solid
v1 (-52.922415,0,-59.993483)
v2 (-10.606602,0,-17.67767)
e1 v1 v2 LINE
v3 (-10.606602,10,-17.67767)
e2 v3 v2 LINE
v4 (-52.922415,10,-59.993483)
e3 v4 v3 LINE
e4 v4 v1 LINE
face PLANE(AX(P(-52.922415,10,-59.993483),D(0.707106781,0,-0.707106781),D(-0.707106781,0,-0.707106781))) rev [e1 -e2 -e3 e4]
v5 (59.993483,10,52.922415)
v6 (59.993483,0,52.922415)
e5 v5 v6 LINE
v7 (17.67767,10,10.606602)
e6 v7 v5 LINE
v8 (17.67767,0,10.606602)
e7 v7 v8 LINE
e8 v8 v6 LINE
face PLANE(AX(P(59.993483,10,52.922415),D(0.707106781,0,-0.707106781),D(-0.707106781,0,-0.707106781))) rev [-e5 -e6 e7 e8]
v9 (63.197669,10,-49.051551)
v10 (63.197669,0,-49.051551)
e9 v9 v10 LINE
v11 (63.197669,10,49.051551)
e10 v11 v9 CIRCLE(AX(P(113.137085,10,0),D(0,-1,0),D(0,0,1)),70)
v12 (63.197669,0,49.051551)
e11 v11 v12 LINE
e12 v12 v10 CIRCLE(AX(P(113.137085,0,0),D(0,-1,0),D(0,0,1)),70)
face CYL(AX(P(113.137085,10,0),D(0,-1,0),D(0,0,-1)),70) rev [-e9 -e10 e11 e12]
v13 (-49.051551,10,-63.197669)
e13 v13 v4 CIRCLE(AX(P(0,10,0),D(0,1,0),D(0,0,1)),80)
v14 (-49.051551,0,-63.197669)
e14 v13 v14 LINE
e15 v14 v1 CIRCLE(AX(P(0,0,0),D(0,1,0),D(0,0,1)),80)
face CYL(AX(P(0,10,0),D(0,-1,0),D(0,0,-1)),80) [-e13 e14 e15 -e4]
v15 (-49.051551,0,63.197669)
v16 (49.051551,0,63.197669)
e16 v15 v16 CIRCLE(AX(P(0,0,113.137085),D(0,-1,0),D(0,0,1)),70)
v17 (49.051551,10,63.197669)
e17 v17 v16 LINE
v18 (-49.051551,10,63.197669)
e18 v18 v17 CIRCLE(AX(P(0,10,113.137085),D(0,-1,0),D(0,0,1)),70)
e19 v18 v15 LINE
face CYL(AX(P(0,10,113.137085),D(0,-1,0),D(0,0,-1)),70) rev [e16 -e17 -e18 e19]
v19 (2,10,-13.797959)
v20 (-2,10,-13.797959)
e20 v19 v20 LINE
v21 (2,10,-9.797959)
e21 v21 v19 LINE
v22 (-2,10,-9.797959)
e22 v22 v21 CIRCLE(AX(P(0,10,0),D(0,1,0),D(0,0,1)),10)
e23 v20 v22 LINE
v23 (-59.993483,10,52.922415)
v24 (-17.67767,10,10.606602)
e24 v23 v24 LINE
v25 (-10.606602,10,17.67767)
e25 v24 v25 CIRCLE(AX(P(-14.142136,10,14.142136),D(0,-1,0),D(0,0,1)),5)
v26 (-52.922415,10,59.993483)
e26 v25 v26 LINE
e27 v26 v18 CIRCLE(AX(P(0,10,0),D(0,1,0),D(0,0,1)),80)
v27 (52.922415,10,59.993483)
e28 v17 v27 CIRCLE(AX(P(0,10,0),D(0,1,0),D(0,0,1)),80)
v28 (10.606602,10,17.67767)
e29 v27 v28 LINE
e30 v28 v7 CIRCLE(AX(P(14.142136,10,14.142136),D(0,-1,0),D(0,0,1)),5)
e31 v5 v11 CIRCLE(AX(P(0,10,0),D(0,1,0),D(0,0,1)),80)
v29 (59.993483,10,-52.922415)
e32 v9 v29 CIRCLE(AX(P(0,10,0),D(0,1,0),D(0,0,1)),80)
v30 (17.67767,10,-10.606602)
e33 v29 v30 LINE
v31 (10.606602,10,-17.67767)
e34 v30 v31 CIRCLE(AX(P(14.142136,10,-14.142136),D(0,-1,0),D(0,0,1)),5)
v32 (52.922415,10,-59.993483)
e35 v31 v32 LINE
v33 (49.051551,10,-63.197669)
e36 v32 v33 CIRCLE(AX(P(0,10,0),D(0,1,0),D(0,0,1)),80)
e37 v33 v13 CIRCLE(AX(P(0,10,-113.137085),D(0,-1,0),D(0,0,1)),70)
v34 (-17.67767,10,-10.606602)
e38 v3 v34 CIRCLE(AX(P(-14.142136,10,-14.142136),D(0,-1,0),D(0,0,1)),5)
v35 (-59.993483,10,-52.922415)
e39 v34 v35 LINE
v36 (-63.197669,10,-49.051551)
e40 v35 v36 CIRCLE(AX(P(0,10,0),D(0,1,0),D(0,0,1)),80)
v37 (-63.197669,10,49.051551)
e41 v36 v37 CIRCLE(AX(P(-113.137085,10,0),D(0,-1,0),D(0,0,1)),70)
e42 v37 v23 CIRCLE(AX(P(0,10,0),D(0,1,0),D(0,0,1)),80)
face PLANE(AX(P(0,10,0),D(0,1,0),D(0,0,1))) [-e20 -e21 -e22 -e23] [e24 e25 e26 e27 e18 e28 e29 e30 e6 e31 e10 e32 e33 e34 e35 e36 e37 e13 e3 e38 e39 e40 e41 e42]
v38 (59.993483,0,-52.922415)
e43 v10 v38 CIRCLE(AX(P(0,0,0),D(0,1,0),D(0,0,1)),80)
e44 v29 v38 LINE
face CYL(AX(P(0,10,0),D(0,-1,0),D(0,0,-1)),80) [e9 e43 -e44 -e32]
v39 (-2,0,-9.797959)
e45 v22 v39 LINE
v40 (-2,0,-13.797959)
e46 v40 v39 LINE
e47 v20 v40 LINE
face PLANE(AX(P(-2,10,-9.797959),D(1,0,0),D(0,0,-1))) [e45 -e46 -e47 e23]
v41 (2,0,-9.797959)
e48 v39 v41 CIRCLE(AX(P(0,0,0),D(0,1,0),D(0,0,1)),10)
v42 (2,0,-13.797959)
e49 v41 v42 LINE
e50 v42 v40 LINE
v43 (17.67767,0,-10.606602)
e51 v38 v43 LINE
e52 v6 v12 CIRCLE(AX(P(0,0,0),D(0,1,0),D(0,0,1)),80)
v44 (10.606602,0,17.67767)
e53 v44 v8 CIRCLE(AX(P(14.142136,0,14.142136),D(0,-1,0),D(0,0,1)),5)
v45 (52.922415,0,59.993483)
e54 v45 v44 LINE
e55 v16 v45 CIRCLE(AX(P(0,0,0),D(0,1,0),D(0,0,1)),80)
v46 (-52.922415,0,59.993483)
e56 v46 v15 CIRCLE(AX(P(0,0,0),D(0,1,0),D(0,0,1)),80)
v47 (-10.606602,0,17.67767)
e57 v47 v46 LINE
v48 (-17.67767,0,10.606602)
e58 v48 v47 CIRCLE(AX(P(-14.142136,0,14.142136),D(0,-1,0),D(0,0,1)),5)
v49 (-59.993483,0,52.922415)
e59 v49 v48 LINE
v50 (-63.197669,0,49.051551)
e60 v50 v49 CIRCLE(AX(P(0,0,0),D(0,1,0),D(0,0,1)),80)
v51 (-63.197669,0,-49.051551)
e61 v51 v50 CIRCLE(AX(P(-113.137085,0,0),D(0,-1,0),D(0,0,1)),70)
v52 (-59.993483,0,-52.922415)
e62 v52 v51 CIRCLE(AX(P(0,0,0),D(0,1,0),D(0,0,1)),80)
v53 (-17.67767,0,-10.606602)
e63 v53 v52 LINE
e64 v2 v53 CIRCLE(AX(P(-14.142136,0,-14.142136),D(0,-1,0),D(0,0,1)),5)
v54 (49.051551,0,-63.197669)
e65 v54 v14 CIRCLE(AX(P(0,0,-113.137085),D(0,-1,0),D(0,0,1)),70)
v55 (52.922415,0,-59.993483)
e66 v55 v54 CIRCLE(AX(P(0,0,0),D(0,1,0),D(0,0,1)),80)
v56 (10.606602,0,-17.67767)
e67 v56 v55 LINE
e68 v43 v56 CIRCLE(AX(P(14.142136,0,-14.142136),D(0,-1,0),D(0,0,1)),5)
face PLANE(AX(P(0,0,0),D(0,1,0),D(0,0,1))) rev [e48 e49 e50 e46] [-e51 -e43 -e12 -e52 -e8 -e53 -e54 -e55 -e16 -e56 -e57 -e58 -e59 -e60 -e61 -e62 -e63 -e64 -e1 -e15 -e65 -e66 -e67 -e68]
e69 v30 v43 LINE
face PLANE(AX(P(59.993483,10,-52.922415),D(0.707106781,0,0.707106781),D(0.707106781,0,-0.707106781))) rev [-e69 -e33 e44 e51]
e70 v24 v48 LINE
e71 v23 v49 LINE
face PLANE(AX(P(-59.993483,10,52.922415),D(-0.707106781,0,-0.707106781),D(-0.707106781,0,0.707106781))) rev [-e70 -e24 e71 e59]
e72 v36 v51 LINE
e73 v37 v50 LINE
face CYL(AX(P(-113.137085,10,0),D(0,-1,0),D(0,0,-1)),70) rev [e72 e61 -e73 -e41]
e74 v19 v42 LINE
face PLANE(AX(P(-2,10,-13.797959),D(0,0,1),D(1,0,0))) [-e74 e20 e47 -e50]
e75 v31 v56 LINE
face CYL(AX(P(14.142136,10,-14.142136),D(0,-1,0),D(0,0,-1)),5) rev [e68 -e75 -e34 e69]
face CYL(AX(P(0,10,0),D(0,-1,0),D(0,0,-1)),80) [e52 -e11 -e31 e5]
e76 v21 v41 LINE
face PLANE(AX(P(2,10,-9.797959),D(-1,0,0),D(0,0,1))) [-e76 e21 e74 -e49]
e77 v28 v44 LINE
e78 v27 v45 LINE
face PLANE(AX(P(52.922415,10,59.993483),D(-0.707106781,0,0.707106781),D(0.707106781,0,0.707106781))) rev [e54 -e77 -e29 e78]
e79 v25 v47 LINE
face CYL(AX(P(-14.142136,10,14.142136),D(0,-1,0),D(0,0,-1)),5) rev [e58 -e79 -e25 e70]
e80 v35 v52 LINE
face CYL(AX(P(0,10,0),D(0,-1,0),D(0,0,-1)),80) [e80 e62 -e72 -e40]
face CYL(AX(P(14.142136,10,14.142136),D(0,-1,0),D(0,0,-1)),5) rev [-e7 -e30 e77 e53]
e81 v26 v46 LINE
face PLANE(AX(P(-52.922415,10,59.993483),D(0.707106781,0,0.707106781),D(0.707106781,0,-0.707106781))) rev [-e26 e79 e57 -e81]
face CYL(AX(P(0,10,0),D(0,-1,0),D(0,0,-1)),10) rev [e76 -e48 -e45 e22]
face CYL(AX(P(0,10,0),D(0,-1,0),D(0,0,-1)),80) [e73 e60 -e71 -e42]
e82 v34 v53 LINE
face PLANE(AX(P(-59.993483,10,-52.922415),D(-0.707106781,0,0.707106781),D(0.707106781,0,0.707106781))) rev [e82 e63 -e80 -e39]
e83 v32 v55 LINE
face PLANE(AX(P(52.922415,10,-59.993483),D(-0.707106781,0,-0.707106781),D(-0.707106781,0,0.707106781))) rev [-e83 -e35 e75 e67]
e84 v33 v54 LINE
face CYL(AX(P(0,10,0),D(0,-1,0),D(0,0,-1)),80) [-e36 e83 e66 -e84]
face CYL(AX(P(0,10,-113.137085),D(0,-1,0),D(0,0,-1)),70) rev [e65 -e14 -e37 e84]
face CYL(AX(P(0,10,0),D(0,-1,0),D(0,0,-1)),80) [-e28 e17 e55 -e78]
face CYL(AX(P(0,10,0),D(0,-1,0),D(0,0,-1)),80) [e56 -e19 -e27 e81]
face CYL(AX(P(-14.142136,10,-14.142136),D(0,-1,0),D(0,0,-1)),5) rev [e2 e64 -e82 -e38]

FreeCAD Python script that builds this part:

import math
import FreeCAD as App
import Part
import Sketcher

V = App.Vector

doc = App.newDocument("Part")
body = doc.addObject("PartDesign::Body", "Body")

sketch1 = body.newObject("Sketcher::SketchObject", "Sketch")
sketch1.AttachmentSupport = (doc.getObject("XZ_Plane"), [""])
sketch1.MapMode = "FlatFace"
sketch1.addGeometry(Part.LineSegment(V(60, -52.9, 0), V(17.7, -10.6, 0)), False)
sketch1.addGeometry(Part.ArcOfCircle(Part.Circle(V(14.1, -14.1, 0), V(0, 0, 1), 5), math.radians(45), math.radians(225)), False)
sketch1.addGeometry(Part.LineSegment(V(10.6, -17.7, 0), V(52.9, -60, 0)), False)
sketch1.addGeometry(Part.ArcOfCircle(Part.Circle(V(0, 0, 0), V(0, 0, 1), 80), math.radians(-52.18), math.radians(-48.58)), False)
sketch1.addGeometry(Part.ArcOfCircle(Part.Circle(V(0, -113.1, 0), V(0, 0, 1), 70), math.radians(46), math.radians(134)), False)
sketch1.addGeometry(Part.ArcOfCircle(Part.Circle(V(0, 0, 0), V(0, 0, 1), 80), math.radians(-131.42), math.radians(-127.82)), False)
sketch1.addGeometry(Part.LineSegment(V(-52.9, -60, 0), V(-10.6, -17.7, 0)), False)
sketch1.addGeometry(Part.ArcOfCircle(Part.Circle(V(-14.1, -14.1, 0), V(0, 0, 1), 5), math.radians(-45), math.radians(135)), False)
sketch1.addGeometry(Part.LineSegment(V(-17.7, -10.6, 0), V(-60, -52.9, 0)), False)
sketch1.addGeometry(Part.ArcOfCircle(Part.Circle(V(0, 0, 0), V(0, 0, 1), 80), math.radians(-142.18), math.radians(-138.58)), False)
sketch1.addGeometry(Part.ArcOfCircle(Part.Circle(V(-113.1, 0, 0), V(0, 0, 1), 70), math.radians(-44), math.radians(44)), False)
sketch1.addGeometry(Part.ArcOfCircle(Part.Circle(V(0, 0, 0), V(0, 0, 1), 80), math.radians(138.58), math.radians(142.18)), False)
sketch1.addGeometry(Part.LineSegment(V(-60, 52.9, 0), V(-17.7, 10.6, 0)), False)
sketch1.addGeometry(Part.ArcOfCircle(Part.Circle(V(-14.1, 14.1, 0), V(0, 0, 1), 5), math.radians(-135), math.radians(45)), False)
sketch1.addGeometry(Part.LineSegment(V(-10.6, 17.7, 0), V(-52.9, 60, 0)), False)
sketch1.addGeometry(Part.ArcOfCircle(Part.Circle(V(0, 0, 0), V(0, 0, 1), 80), math.radians(127.82), math.radians(131.42)), False)
sketch1.addGeometry(Part.ArcOfCircle(Part.Circle(V(0, 113.1, 0), V(0, 0, 1), 70), math.radians(-134), math.radians(-46)), False)
sketch1.addGeometry(Part.ArcOfCircle(Part.Circle(V(0, 0, 0), V(0, 0, 1), 80), math.radians(48.58), math.radians(52.18)), False)
sketch1.addGeometry(Part.LineSegment(V(52.9, 60, 0), V(10.6, 17.7, 0)), False)
sketch1.addGeometry(Part.ArcOfCircle(Part.Circle(V(14.1, 14.1, 0), V(0, 0, 1), 5), math.radians(135), math.radians(315)), False)
sketch1.addGeometry(Part.LineSegment(V(17.7, 10.6, 0), V(60, 52.9, 0)), False)
sketch1.addGeometry(Part.ArcOfCircle(Part.Circle(V(0, 0, 0), V(0, 0, 1), 80), math.radians(37.82), math.radians(41.42)), False)
sketch1.addGeometry(Part.ArcOfCircle(Part.Circle(V(113.1, 0, 0), V(0, 0, 1), 70), math.radians(136), math.radians(224)), False)
sketch1.addGeometry(Part.ArcOfCircle(Part.Circle(V(0, 0, 0), V(0, 0, 1), 80), math.radians(-41.42), math.radians(-37.82)), False)
sketch1.addGeometry(Part.ArcOfCircle(Part.Circle(V(0, 0, 0), V(0, 0, 1), 10), math.radians(-78), math.radians(258)), False)
sketch1.addGeometry(Part.LineSegment(V(-2, -9.8, 0), V(-2, -13.8, 0)), False)
sketch1.addGeometry(Part.LineSegment(V(-2, -13.8, 0), V(2, -13.8, 0)), False)
sketch1.addGeometry(Part.LineSegment(V(2, -13.8, 0), V(2, -9.8, 0)), False)
sketch1.addConstraint(Sketcher.Constraint("Tangent", 0, 2, 1, 1))
sketch1.addConstraint(Sketcher.Constraint("Tangent", 1, 2, 2, 1))
sketch1.addConstraint(Sketcher.Constraint("Coincident", 2, 2, 3, 2))
sketch1.addConstraint(Sketcher.Constraint("Coincident", 3, 1, 4, 1))
sketch1.addConstraint(Sketcher.Constraint("Coincident", 4, 2, 5, 2))
sketch1.addConstraint(Sketcher.Constraint("Coincident", 5, 1, 6, 1))
sketch1.addConstraint(Sketcher.Constraint("Tangent", 6, 2, 7, 1))
sketch1.addConstraint(Sketcher.Constraint("Tangent", 7, 2, 8, 1))
sketch1.addConstraint(Sketcher.Constraint("Coincident", 8, 2, 9, 2))
sketch1.addConstraint(Sketcher.Constraint("Coincident", 9, 1, 10, 1))
sketch1.addConstraint(Sketcher.Constraint("Coincident", 10, 2, 11, 2))
sketch1.addConstraint(Sketcher.Constraint("Coincident", 11, 1, 12, 1))
sketch1.addConstraint(Sketcher.Constraint("Tangent", 12, 2, 13, 1))
sketch1.addConstraint(Sketcher.Constraint("Tangent", 13, 2, 14, 1))
sketch1.addConstraint(Sketcher.Constraint("Coincident", 14, 2, 15, 2))
sketch1.addConstraint(Sketcher.Constraint("Coincident", 15, 1, 16, 1))
sketch1.addConstraint(Sketcher.Constraint("Coincident", 16, 2, 17, 2))
sketch1.addConstraint(Sketcher.Constraint("Coincident", 17, 1, 18, 1))
sketch1.addConstraint(Sketcher.Constraint("Tangent", 18, 2, 19, 1))
sketch1.addConstraint(Sketcher.Constraint("Tangent", 19, 2, 20, 1))
sketch1.addConstraint(Sketcher.Constraint("Coincident", 20, 2, 21, 2))
sketch1.addConstraint(Sketcher.Constraint("Coincident", 21, 1, 22, 1))
sketch1.addConstraint(Sketcher.Constraint("Coincident", 22, 2, 23, 2))
sketch1.addConstraint(Sketcher.Constraint("Coincident", 23, 1, 0, 1))
sketch1.addConstraint(Sketcher.Constraint("Coincident", 24, 2, 25, 1))
sketch1.addConstraint(Sketcher.Constraint("Coincident", 25, 2, 26, 1))
sketch1.addConstraint(Sketcher.Constraint("Coincident", 26, 2, 27, 1))
sketch1.addConstraint(Sketcher.Constraint("Coincident", 27, 2, 24, 1))
sketch1.addConstraint(Sketcher.Constraint("Vertical", 25))
sketch1.addConstraint(Sketcher.Constraint("Horizontal", 26))
sketch1.addConstraint(Sketcher.Constraint("Vertical", 27))
sketch1.addConstraint(Sketcher.Constraint("Coincident", 3, 3, -1, 1))
sketch1.addConstraint(Sketcher.Constraint("Coincident", 5, 3, -1, 1))
sketch1.addConstraint(Sketcher.Constraint("Coincident", 9, 3, -1, 1))
sketch1.addConstraint(Sketcher.Constraint("Coincident", 11, 3, -1, 1))
sketch1.addConstraint(Sketcher.Constraint("Coincident", 15, 3, -1, 1))
sketch1.addConstraint(Sketcher.Constraint("Coincident", 17, 3, -1, 1))
sketch1.addConstraint(Sketcher.Constraint("Coincident", 21, 3, -1, 1))
sketch1.addConstraint(Sketcher.Constraint("Coincident", 23, 3, -1, 1))
sketch1.addConstraint(Sketcher.Constraint("Coincident", 24, 3, -1, 1))
sketch1.addConstraint(Sketcher.Constraint("Equal", 3, 5))
sketch1.addConstraint(Sketcher.Constraint("Equal", 1, 7))
sketch1.addConstraint(Sketcher.Constraint("Equal", 5, 9))
sketch1.addConstraint(Sketcher.Constraint("Equal", 4, 10))
sketch1.addConstraint(Sketcher.Constraint("Equal", 9, 11))
sketch1.addConstraint(Sketcher.Constraint("Equal", 7, 13))
sketch1.addConstraint(Sketcher.Constraint("Equal", 11, 15))
sketch1.addConstraint(Sketcher.Constraint("Equal", 10, 16))
sketch1.addConstraint(Sketcher.Constraint("Equal", 15, 17))
sketch1.addConstraint(Sketcher.Constraint("Equal", 13, 19))
sketch1.addConstraint(Sketcher.Constraint("Equal", 17, 21))
sketch1.addConstraint(Sketcher.Constraint("Equal", 16, 22))
sketch1.addConstraint(Sketcher.Constraint("Equal", 21, 23))
sketch1.addConstraint(Sketcher.Constraint("Symmetric", 1, 3, 13, 3, -1, 1))
sketch1.addConstraint(Sketcher.Constraint("Symmetric", 4, 3, 16, 3, -1, 1))
sketch1.addConstraint(Sketcher.Constraint("Symmetric", 7, 3, 19, 3, -1, 1))
sketch1.addConstraint(Sketcher.Constraint("Symmetric", 10, 3, 22, 3, -1, 1))
sketch1.addConstraint(Sketcher.Constraint("Symmetric", 1, 3, 7, 3, -2))
sketch1.addConstraint(Sketcher.Constraint("PointOnObject", 4, 3, -2))
sketch1.addConstraint(Sketcher.Constraint("PointOnObject", 10, 3, -1))
sketch1.addConstraint(Sketcher.Constraint("Parallel", 0, 2))
sketch1.addConstraint(Sketcher.Constraint("Perpendicular", 2, 6))
sketch1.addConstraint(Sketcher.Constraint("Parallel", 6, 8))
sketch1.addConstraint(Sketcher.Constraint("Perpendicular", 8, 12))
sketch1.addConstraint(Sketcher.Constraint("Parallel", 12, 14))
sketch1.addConstraint(Sketcher.Constraint("Perpendicular", 14, 18))
sketch1.addConstraint(Sketcher.Constraint("Parallel", 18, 20))
sketch1.addConstraint(Sketcher.Constraint("Horizontal", 2, 2, 5, 1))
sketch1.addConstraint(Sketcher.Constraint("Horizontal", 24, 2, 27, 2))
sketch1.addConstraint(Sketcher.Constraint("Equal", 26, 25))
sketch1.addConstraint(Sketcher.Constraint("Equal", 0, 2))
sketch1.addConstraint(Sketcher.Constraint("Radius", 1, 5.0))
sketch1.addConstraint(Sketcher.Constraint("Radius", 3, 80.0))
sketch1.addConstraint(Sketcher.Constraint("Radius", 4, 70.0))
sketch1.addConstraint(Sketcher.Constraint("Radius", 24, 10.0))
sketch1.addConstraint(Sketcher.Constraint("DistanceX", 26, 1, 26, 2, 4.0))
sketch1.addConstraint(Sketcher.Constraint("DistanceY", 3, 1, 1, 2, 45.519999))
sketch1.addConstraint(Sketcher.Constraint("DistanceX", 9, 1, 7, 2, 45.519999))
sketch1.addConstraint(Sketcher.Constraint("DistanceY", 0, 2, -1, 1, 10.606602))
pad1 = body.newObject("PartDesign::Pad", "Pad")
pad1.Profile = sketch1
pad1.Length = 10
pad1.Reversed = True

doc.recompute()
